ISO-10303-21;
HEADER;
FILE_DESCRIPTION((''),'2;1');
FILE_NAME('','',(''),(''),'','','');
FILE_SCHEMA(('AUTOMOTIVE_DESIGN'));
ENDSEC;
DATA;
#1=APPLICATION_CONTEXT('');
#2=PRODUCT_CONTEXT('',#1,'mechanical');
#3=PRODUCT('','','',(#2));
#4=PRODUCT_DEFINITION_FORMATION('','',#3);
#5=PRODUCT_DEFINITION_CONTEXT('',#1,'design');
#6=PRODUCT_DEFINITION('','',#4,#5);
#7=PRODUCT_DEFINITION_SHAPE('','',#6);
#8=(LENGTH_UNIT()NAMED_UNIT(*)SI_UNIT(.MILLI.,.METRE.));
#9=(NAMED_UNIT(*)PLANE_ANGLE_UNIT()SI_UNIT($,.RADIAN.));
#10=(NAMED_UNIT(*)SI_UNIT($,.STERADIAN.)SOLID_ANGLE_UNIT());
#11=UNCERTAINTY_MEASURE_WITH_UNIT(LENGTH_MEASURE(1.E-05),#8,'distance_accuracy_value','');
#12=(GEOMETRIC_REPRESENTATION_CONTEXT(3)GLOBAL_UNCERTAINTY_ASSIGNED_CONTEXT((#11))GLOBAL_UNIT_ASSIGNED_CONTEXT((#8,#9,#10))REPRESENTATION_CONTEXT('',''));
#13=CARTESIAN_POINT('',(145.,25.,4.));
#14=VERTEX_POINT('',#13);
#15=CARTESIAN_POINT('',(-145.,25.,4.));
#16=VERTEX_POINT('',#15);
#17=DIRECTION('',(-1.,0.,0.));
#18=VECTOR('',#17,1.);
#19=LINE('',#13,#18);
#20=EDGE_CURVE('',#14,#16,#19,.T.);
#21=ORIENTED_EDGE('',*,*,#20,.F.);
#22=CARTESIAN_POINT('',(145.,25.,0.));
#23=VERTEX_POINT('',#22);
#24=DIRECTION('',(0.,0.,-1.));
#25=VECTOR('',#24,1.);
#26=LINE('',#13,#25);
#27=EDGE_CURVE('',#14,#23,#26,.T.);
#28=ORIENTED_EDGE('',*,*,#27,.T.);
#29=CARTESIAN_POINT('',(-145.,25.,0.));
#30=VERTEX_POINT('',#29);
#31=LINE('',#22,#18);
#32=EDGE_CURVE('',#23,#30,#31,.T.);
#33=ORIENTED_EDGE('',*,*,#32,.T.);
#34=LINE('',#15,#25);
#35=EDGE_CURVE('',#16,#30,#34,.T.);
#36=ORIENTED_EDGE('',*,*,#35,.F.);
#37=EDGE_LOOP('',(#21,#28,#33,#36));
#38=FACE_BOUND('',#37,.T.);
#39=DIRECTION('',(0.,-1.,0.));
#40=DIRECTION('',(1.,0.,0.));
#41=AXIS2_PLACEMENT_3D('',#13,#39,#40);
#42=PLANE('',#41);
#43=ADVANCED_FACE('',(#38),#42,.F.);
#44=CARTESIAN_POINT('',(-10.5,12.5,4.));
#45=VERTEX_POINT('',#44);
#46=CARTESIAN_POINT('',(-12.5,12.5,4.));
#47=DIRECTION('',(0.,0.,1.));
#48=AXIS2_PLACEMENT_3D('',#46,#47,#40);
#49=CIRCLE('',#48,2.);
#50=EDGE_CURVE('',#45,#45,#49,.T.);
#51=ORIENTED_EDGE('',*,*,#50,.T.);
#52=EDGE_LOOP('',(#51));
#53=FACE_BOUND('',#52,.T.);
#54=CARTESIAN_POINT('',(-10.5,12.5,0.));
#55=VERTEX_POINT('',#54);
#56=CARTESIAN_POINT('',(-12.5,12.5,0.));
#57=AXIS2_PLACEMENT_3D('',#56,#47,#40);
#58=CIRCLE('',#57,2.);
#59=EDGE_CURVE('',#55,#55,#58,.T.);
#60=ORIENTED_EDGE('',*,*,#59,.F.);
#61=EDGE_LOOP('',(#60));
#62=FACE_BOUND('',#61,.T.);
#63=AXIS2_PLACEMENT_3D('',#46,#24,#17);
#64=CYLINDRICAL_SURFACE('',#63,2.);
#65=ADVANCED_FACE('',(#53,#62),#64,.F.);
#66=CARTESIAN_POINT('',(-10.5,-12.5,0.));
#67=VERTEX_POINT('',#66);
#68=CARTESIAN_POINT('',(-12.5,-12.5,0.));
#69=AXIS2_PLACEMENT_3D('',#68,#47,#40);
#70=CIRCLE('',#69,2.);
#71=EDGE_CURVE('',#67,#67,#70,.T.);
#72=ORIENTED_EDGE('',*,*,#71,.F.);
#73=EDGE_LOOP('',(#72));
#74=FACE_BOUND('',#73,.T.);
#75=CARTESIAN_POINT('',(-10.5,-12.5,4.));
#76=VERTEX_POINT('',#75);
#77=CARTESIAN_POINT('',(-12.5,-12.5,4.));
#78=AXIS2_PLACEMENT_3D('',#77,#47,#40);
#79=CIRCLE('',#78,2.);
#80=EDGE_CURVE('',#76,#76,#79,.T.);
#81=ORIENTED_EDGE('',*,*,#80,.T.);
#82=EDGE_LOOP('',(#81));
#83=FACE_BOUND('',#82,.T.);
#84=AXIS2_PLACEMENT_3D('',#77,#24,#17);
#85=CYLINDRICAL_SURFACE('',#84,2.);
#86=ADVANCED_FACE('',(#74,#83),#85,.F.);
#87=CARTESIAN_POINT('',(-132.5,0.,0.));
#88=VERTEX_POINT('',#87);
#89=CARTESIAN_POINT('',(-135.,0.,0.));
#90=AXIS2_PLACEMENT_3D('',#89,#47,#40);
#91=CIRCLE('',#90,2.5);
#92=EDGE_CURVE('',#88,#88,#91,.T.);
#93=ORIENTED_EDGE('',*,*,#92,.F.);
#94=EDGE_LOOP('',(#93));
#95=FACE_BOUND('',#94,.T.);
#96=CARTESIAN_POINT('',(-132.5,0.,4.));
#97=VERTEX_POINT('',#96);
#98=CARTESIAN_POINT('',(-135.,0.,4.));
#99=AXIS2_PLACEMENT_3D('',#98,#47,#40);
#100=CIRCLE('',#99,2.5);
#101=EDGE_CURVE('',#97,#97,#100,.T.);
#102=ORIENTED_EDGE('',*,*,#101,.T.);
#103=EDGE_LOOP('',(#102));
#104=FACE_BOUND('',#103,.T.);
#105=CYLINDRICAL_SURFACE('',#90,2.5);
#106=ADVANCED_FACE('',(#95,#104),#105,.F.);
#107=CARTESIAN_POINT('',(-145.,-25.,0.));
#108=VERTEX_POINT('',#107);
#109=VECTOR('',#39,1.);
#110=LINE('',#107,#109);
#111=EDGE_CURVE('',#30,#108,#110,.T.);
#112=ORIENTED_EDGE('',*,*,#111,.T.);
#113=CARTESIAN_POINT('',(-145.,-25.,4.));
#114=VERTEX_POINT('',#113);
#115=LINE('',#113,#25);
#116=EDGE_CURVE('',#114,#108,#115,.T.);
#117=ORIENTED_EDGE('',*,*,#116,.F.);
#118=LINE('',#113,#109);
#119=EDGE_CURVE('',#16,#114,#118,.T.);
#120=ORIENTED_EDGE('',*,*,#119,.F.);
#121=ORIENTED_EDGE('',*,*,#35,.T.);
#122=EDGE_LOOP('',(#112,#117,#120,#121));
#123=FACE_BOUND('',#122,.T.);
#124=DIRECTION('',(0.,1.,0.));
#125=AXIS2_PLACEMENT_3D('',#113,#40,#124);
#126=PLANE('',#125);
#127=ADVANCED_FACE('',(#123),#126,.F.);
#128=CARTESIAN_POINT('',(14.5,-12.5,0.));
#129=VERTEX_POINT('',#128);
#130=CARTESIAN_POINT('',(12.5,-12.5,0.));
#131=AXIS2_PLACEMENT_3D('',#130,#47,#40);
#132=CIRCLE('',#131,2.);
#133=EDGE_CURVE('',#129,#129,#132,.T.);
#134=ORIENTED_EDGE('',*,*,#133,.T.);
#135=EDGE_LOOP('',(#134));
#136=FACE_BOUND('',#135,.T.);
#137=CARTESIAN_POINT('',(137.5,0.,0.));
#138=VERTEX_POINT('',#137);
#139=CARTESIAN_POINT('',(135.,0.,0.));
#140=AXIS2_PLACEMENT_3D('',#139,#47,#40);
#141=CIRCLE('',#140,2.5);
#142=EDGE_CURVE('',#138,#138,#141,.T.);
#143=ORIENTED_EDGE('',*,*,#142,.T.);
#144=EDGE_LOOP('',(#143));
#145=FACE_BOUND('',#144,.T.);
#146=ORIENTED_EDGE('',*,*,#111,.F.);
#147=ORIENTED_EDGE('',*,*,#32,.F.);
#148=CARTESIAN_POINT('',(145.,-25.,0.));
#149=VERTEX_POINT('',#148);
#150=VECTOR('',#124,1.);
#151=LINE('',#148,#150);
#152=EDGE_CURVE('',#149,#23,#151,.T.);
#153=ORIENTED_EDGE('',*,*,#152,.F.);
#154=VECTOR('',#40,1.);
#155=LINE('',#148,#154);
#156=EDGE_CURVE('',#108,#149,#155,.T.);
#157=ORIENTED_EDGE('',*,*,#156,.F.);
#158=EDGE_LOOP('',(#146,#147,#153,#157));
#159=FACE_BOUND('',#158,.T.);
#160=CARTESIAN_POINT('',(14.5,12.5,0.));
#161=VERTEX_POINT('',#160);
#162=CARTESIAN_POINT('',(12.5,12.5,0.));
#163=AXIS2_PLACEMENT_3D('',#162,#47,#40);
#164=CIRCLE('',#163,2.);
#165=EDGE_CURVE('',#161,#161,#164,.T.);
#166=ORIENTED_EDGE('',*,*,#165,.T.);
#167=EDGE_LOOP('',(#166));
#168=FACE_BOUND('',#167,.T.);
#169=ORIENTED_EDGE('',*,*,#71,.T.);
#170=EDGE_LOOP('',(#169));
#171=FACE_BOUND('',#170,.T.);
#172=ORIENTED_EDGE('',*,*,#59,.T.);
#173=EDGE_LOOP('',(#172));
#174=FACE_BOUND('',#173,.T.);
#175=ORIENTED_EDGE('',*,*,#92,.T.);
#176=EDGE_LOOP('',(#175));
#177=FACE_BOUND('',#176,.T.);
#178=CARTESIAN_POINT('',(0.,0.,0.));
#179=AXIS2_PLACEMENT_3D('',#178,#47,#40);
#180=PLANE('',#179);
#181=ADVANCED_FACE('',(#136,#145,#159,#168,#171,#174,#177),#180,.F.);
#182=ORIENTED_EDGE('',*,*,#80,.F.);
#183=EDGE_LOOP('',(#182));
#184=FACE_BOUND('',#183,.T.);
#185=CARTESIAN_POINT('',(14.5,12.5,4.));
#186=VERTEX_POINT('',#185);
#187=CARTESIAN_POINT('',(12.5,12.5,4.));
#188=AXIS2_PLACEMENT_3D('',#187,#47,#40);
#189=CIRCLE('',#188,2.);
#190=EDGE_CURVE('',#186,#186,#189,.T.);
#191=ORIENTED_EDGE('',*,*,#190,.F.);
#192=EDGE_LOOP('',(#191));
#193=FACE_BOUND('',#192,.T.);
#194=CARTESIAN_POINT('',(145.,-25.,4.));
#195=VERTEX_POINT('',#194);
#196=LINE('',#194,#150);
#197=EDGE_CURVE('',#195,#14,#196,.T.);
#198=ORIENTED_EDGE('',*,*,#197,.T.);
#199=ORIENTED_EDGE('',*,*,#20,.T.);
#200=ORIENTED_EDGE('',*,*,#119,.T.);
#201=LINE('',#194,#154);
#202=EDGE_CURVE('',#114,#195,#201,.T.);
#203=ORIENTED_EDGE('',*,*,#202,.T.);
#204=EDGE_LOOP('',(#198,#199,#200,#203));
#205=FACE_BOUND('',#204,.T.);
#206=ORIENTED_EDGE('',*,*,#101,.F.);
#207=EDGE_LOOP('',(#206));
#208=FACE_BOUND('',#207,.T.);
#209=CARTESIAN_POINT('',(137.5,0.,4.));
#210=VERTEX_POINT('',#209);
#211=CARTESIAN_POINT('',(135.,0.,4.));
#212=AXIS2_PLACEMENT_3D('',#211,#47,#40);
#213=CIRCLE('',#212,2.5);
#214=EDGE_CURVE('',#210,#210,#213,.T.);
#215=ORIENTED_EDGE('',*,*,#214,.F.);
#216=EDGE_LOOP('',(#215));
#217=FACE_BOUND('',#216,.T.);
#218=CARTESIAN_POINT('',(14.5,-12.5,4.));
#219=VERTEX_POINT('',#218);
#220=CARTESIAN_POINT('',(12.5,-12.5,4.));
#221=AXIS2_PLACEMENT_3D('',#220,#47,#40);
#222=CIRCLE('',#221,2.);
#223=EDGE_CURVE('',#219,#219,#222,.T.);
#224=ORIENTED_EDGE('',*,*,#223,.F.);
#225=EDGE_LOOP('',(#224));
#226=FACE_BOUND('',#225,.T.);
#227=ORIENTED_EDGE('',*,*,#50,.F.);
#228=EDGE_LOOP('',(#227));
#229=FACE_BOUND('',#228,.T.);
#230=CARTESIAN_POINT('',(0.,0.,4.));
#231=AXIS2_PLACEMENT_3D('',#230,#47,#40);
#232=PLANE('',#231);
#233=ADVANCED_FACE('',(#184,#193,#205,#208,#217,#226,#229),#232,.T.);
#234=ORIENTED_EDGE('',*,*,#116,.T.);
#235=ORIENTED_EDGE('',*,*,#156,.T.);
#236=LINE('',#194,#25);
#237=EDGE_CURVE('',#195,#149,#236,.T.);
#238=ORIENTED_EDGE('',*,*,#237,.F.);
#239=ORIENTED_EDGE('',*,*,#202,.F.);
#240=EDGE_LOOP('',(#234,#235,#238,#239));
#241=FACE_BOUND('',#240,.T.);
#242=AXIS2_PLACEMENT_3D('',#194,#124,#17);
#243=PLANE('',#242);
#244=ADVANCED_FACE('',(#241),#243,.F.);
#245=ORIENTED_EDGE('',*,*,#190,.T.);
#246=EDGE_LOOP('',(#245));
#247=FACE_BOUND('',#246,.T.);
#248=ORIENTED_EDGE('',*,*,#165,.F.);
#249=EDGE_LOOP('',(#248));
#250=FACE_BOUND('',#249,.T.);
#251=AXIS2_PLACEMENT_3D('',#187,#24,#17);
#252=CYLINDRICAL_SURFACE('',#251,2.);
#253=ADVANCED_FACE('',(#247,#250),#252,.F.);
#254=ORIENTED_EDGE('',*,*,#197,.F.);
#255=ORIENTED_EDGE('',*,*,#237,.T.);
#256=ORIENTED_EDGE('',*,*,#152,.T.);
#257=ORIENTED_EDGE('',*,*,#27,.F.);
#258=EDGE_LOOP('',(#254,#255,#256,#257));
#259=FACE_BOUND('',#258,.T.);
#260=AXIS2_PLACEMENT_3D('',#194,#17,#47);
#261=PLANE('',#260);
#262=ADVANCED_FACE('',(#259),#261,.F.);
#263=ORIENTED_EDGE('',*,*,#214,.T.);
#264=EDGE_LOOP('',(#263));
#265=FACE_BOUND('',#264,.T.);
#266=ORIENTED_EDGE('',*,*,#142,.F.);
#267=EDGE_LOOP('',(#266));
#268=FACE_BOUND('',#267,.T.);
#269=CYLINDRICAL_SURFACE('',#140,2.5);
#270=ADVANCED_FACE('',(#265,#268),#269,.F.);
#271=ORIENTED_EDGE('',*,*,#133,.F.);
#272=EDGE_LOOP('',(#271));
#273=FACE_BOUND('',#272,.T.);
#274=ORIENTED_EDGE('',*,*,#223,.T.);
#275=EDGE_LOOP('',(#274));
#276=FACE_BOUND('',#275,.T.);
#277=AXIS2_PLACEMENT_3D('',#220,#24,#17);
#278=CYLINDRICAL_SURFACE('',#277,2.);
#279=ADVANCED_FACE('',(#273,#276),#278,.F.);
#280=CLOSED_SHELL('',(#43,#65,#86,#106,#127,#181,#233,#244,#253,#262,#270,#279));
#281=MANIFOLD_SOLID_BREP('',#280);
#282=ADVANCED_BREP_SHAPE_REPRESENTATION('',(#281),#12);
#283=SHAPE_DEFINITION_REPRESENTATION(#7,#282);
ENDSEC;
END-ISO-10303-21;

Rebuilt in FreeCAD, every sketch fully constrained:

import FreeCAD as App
import Part
import Sketcher
from FreeCAD import Vector
Q = App.Units.Quantity


def add_polygon(sketch, points):
    """Adds a closed chain of lines whose ends are joined by coincident constraints."""
    first, n = sketch.GeometryCount, len(points)
    for a, b in zip(points, points[1:] + points[:1]):
        sketch.addGeometry(Part.LineSegment(App.Vector(*a, 0), App.Vector(*b, 0)), False)
    for i in range(n):
        sketch.addConstraint(Sketcher.Constraint("Coincident", first + i, 2, first + (i + 1) % n, 1))

doc = App.newDocument("Part")
body = doc.addObject("PartDesign::Body", "Body")

# Sketch on XY plane
sketch1 = body.newObject("Sketcher::SketchObject", "Sketch")
sketch1.AttachmentSupport = (doc.getObject("XY_Plane"), [""])
sketch1.MapMode = "FlatFace"
add_polygon(sketch1, [(-145, 25), (-145, -25), (145, -25), (145, 25)])  # lines 0-3
sketch1.addGeometry(Part.Circle(Vector(-12.5, -12.5, 0), Vector(0, 0, 1), 2), False)  # 4
sketch1.addGeometry(Part.Circle(Vector(12.5, -12.5, 0), Vector(0, 0, 1), 2), False)  # 5
sketch1.addGeometry(Part.Circle(Vector(-12.5, 12.5, 0), Vector(0, 0, 1), 2), False)  # 6
sketch1.addGeometry(Part.Circle(Vector(12.5, 12.5, 0), Vector(0, 0, 1), 2), False)  # 7
sketch1.addConstraint([
    Sketcher.Constraint("Vertical", 0),
    Sketcher.Constraint("Horizontal", 1),
    Sketcher.Constraint("Vertical", 2),
    Sketcher.Constraint("Horizontal", 3),
    Sketcher.Constraint("Equal", 4, 5),
    Sketcher.Constraint("Equal", 5, 6),
    Sketcher.Constraint("Equal", 6, 7),
    Sketcher.Constraint("Symmetric", 5, 3, 6, 3, -1, 1),
    Sketcher.Constraint("Symmetric", 4, 3, 7, 3, -1, 1),
    Sketcher.Constraint("Symmetric", 0, 2, 2, 2, -1, 1),
    Sketcher.Constraint("Symmetric", 4, 3, 5, 3, -2),
    Sketcher.Constraint("Diameter", 4, Q("4 mm")),
    Sketcher.Constraint("DistanceX", 1, 1, 1, 2, Q("290 mm")),
    Sketcher.Constraint("DistanceY", 0, 2, 0, 1, Q("50 mm")),
    Sketcher.Constraint("DistanceX", 4, 3, 5, 3, Q("25 mm")),
    Sketcher.Constraint("DistanceY", 4, 3, 6, 3, Q("25 mm")),
])
pad1 = body.newObject("PartDesign::Pad", "Pad")
pad1.Profile = sketch1
pad1.Length = 4

# Sketch on XY plane
sketch2 = body.newObject("Sketcher::SketchObject", "Sketch001")
sketch2.AttachmentSupport = (doc.getObject("XY_Plane"), [""])
sketch2.MapMode = "FlatFace"
sketch2.AttachmentOffset = App.Placement(Vector(0, 0, 4), App.Rotation())
sketch2.addGeometry([
    Part.Circle(Vector(-135, 0, 0), Vector(0, 0, 1), 2.5),
    Part.Circle(Vector(135, 0, 0), Vector(0, 0, 1), 2.5),
], False)
sketch2.addConstraint([
    Sketcher.Constraint("Equal", 0, 1),
    Sketcher.Constraint("Symmetric", 0, 3, 1, 3, -1, 1),
    Sketcher.Constraint("PointOnObject", 0, 3, -1),
    Sketcher.Constraint("Diameter", 0, Q("5 mm")),
    Sketcher.Constraint("DistanceX", 0, 3, -1, 1, Q("135 mm")),
])
pocket1 = body.newObject("PartDesign::Pocket", "Pocket")
pocket1.Profile = sketch2
pocket1.Length = 4

doc.recompute()
